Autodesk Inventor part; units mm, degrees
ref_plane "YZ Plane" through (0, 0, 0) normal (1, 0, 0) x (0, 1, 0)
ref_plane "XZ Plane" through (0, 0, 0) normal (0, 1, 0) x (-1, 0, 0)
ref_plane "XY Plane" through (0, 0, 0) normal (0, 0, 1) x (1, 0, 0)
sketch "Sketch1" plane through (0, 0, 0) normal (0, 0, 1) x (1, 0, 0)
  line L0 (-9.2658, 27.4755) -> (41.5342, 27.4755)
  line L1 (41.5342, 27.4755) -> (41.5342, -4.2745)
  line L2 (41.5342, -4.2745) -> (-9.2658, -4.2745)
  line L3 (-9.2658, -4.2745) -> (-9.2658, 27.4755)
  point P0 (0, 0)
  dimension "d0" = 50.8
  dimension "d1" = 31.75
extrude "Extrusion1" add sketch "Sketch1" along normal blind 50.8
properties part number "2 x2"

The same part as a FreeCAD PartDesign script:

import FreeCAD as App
import Part
import Sketcher
from FreeCAD import Vector
Q = App.Units.Quantity


def add_polygon(sketch, points):
    """Adds a closed chain of lines whose ends are joined by coincident constraints."""
    first, n = sketch.GeometryCount, len(points)
    for a, b in zip(points, points[1:] + points[:1]):
        sketch.addGeometry(Part.LineSegment(App.Vector(*a, 0), App.Vector(*b, 0)), False)
    for i in range(n):
        sketch.addConstraint(Sketcher.Constraint("Coincident", first + i, 2, first + (i + 1) % n, 1))

doc = App.newDocument("Part")
params = doc.addObject("Spreadsheet::Sheet", "Params")
for row, (alias, value) in enumerate([
    ("sketch1_width", "2 in"),
    ("sketch1_height", "1.25 in"),
    ("pad1_length", "2 in"),
], start=1):
    params.set(f"A{row}", alias)
    params.set(f"B{row}", "=" + value)
    params.setAlias(f"B{row}", alias)

body = doc.addObject("PartDesign::Body", "Body")

# Sketch on XY plane
sketch1 = body.newObject("Sketcher::SketchObject", "Sketch")
sketch1.AttachmentSupport = (doc.getObject("XY_Plane"), [""])
sketch1.MapMode = "FlatFace"
add_polygon(sketch1, [(41.5342, 27.4755), (-9.2658, 27.4755), (-9.2658, -4.2745), (41.5342, -4.2745)])  # lines 0-3
sketch1.addConstraint([
    Sketcher.Constraint("Horizontal", 0),
    Sketcher.Constraint("Vertical", 1),
    Sketcher.Constraint("Horizontal", 2),
    Sketcher.Constraint("Vertical", 3),
    Sketcher.Constraint("DistanceX", 0, 2, 0, 1, Q("2 in")),
    Sketcher.Constraint("DistanceY", 1, 2, 1, 1, Q("1.25 in")),
    Sketcher.Constraint("DistanceX", 0, 2, -1, 1, Q("0.3648 in")),
    Sketcher.Constraint("DistanceY", -1, 1, 0, 2, 27.4755),
])
sketch1.setExpression("Constraints[8]", "Params.sketch1_width")
sketch1.setExpression("Constraints[9]", "Params.sketch1_height")
pad1 = body.newObject("PartDesign::Pad", "Pad")
pad1.Profile = sketch1
pad1.setExpression("Length", "Params.pad1_length")

doc.recompute()
